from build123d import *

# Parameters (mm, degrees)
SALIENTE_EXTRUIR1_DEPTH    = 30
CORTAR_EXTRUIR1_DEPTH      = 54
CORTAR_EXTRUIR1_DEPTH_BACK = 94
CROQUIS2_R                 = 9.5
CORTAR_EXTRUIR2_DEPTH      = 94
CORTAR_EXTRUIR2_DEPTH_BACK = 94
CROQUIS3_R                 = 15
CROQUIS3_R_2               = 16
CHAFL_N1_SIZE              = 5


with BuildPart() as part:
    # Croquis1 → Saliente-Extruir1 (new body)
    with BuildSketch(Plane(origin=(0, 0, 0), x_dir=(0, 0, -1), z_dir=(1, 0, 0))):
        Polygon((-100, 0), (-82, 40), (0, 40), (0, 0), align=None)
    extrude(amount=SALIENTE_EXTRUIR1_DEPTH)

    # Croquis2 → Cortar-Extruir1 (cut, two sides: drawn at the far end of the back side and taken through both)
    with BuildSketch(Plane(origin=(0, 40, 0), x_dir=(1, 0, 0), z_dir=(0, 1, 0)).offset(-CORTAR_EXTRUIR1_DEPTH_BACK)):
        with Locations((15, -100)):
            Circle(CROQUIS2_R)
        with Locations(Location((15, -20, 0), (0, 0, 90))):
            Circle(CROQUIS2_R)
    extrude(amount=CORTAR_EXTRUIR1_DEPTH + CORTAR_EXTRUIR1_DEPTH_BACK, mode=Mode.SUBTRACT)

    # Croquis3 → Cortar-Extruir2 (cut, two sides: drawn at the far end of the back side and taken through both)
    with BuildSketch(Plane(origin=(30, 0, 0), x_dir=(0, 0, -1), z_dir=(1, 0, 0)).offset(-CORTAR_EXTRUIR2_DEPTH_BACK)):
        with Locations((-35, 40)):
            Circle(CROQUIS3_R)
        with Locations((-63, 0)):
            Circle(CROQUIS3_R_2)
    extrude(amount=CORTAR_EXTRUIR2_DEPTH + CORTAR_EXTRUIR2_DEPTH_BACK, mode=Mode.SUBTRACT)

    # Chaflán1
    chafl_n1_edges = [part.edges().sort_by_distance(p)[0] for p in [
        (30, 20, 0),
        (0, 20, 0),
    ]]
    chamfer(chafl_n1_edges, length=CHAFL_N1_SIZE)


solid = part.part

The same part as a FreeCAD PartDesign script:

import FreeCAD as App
import Part
import Sketcher

V = App.Vector
Q = App.Units.Quantity


def edges_at(feature, points):
    """Names of the edges that pass closest to the given points."""
    edges = feature.Shape.Edges
    near = lambda p: min(range(len(edges)), key=lambda i: edges[i].distToShape(Part.Vertex(*p))[0])
    return sorted({f"Edge{near(p) + 1}" for p in points})

doc = App.newDocument("Part")
body = doc.addObject("PartDesign::Body", "Body")

# Sketch on YZ plane
sketch1 = body.newObject("Sketcher::SketchObject", "Sketch")
sketch1.AttachmentSupport = (doc.getObject("YZ_Plane"), [""])
sketch1.MapMode = "FlatFace"
sketch1.addGeometry(Part.LineSegment(V(40, 82, 0), V(0, 100, 0)), False)
sketch1.addGeometry(Part.LineSegment(V(0, 100, 0), V(0, 0, 0)), False)
sketch1.addGeometry(Part.LineSegment(V(0, 0, 0), V(40, 0, 0)), False)
sketch1.addGeometry(Part.LineSegment(V(40, 0, 0), V(40, 82, 0)), False)
sketch1.addConstraint(Sketcher.Constraint("Coincident", 0, 2, 1, 1))
sketch1.addConstraint(Sketcher.Constraint("Coincident", 1, 2, 2, 1))
sketch1.addConstraint(Sketcher.Constraint("Coincident", 2, 2, 3, 1))
sketch1.addConstraint(Sketcher.Constraint("Coincident", 3, 2, 0, 1))
sketch1.addConstraint(Sketcher.Constraint("Vertical", 1))
sketch1.addConstraint(Sketcher.Constraint("Horizontal", 2))
sketch1.addConstraint(Sketcher.Constraint("Vertical", 3))
sketch1.addConstraint(Sketcher.Constraint("Coincident", 1, 2, -1, 1))
sketch1.addConstraint(Sketcher.Constraint("DistanceX", 2, 1, 2, 2, Q("40 mm")))
sketch1.addConstraint(Sketcher.Constraint("DistanceY", 1, 2, 1, 1, Q("100 mm")))
sketch1.addConstraint(Sketcher.Constraint("DistanceY", 3, 1, 3, 2, Q("82 mm")))
pad1 = body.newObject("PartDesign::Pad", "Pad")
pad1.Profile = sketch1
pad1.Length = 30

# Sketch on XZ plane
sketch2 = body.newObject("Sketcher::SketchObject", "Sketch001")
sketch2.AttachmentSupport = (doc.getObject("XZ_Plane"), [""])
sketch2.MapMode = "FlatFace"
sketch2.AttachmentOffset = App.Placement(V(0, 0, -40), App.Rotation())
sketch2.addGeometry(Part.Circle(V(15, 100, 0), V(0, 0, 1), 10), False)
sketch2.addGeometry(Part.Circle(V(15, 20, 0), V(0, 0, 1), 10), False)
sketch2.addConstraint(Sketcher.Constraint("Equal", 0, 1))
sketch2.addConstraint(Sketcher.Constraint("Vertical", 0, 3, 1, 3))
sketch2.addConstraint(Sketcher.Constraint("Diameter", 0, Q("19 mm")))
sketch2.addConstraint(Sketcher.Constraint("DistanceX", -1, 1, 0, 3, Q("15 mm")))
sketch2.addConstraint(Sketcher.Constraint("DistanceY", -1, 1, 0, 3, Q("100 mm")))
sketch2.addConstraint(Sketcher.Constraint("DistanceY", -1, 1, 1, 3, Q("20 mm")))
pocket1 = body.newObject("PartDesign::Pocket", "Pocket")
pocket1.Profile = sketch2
pocket1.Type = "ThroughAll"
pocket1.Midplane = True

# Sketch on YZ plane
sketch3 = body.newObject("Sketcher::SketchObject", "Sketch002")
sketch3.AttachmentSupport = (doc.getObject("YZ_Plane"), [""])
sketch3.MapMode = "FlatFace"
sketch3.AttachmentOffset = App.Placement(V(0, 0, 30), App.Rotation())
sketch3.addGeometry(Part.Circle(V(40, 35, 0), V(0, 0, 1), 15), False)
sketch3.addGeometry(Part.Circle(V(0, 63, 0), V(0, 0, 1), 16), False)
sketch3.addConstraint(Sketcher.Constraint("PointOnObject", 1, 3, -2))
sketch3.addConstraint(Sketcher.Constraint("Diameter", 0, Q("30 mm")))
sketch3.addConstraint(Sketcher.Constraint("Diameter", 1, Q("32 mm")))
sketch3.addConstraint(Sketcher.Constraint("DistanceX", -1, 1, 0, 3, Q("40 mm")))
sketch3.addConstraint(Sketcher.Constraint("DistanceY", -1, 1, 0, 3, Q("35 mm")))
sketch3.addConstraint(Sketcher.Constraint("DistanceY", -1, 1, 1, 3, Q("63 mm")))
pocket2 = body.newObject("PartDesign::Pocket", "Pocket001")
pocket2.Profile = sketch3
pocket2.Type = "ThroughAll"
pocket2.Midplane = True
doc.recompute()

chamfer = body.newObject("PartDesign::Chamfer", "Chamfer")
chamfer.Base = (pocket2, edges_at(pocket2, [(30, 20, 0), (0, 20, 0)]))
chamfer.Size = 5

doc.recompute()
